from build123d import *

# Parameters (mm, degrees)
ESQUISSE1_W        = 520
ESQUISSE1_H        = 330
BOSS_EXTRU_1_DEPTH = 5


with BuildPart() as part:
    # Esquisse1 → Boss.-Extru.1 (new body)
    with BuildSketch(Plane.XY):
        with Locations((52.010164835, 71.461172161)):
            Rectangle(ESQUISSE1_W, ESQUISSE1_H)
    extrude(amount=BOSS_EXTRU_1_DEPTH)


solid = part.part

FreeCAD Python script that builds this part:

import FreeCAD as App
import Part
import Sketcher

doc = App.newDocument("Part")
params = doc.addObject("Spreadsheet::Sheet", "Params")
for row, (alias, value) in enumerate([
    ("sketch1_width", "520 mm"),
    ("sketch1_height", "330 mm"),
    ("pad1_length", "5 mm"),
], start=1):
    params.set(f"A{row}", alias)
    params.set(f"B{row}", "=" + value)
    params.setAlias(f"B{row}", alias)

body = doc.addObject("PartDesign::Body", "Body")

# Sketch on XY plane
sketch1 = body.newObject("Sketcher::SketchObject", "Sketch")
sketch1.AttachmentSupport = (doc.getObject("XY_Plane"), [""])
sketch1.MapMode = "FlatFace"
sketch1.addGeometry(Part.LineSegment(App.Vector(-207.989835, 236.461172, 0), App.Vector(-207.989835, -93.538828, 0)), False)
sketch1.addGeometry(Part.LineSegment(App.Vector(-207.989835, -93.538828, 0), App.Vector(312.010165, -93.538828, 0)), False)
sketch1.addGeometry(Part.LineSegment(App.Vector(312.010165, -93.538828, 0), App.Vector(312.010165, 236.461172, 0)), False)
sketch1.addGeometry(Part.LineSegment(App.Vector(312.010165, 236.461172, 0), App.Vector(-207.989835, 236.461172, 0)), False)
sketch1.addConstraint(Sketcher.Constraint("Coincident", 0, 2, 1, 1))
sketch1.addConstraint(Sketcher.Constraint("Coincident", 1, 2, 2, 1))
sketch1.addConstraint(Sketcher.Constraint("Coincident", 2, 2, 3, 1))
sketch1.addConstraint(Sketcher.Constraint("Coincident", 3, 2, 0, 1))
sketch1.addConstraint(Sketcher.Constraint("Vertical", 0))
sketch1.addConstraint(Sketcher.Constraint("Horizontal", 1))
sketch1.addConstraint(Sketcher.Constraint("Vertical", 2))
sketch1.addConstraint(Sketcher.Constraint("Horizontal", 3))
sketch1.addConstraint(Sketcher.Constraint("DistanceX", 1, 1, 1, 2, 520.0))
sketch1.addConstraint(Sketcher.Constraint("DistanceY", 0, 2, 0, 1, 330.0))
sketch1.addConstraint(Sketcher.Constraint("DistanceX", 0, 2, -1, 1, 207.989835))
sketch1.addConstraint(Sketcher.Constraint("DistanceY", 0, 2, -1, 1, 93.538828))
sketch1.setExpression("Constraints[8]", "Params.sketch1_width")
sketch1.setExpression("Constraints[9]", "Params.sketch1_height")
pad1 = body.newObject("PartDesign::Pad", "Pad")
pad1.Profile = sketch1
pad1.setExpression("Length", "Params.pad1_length")

doc.recompute()
